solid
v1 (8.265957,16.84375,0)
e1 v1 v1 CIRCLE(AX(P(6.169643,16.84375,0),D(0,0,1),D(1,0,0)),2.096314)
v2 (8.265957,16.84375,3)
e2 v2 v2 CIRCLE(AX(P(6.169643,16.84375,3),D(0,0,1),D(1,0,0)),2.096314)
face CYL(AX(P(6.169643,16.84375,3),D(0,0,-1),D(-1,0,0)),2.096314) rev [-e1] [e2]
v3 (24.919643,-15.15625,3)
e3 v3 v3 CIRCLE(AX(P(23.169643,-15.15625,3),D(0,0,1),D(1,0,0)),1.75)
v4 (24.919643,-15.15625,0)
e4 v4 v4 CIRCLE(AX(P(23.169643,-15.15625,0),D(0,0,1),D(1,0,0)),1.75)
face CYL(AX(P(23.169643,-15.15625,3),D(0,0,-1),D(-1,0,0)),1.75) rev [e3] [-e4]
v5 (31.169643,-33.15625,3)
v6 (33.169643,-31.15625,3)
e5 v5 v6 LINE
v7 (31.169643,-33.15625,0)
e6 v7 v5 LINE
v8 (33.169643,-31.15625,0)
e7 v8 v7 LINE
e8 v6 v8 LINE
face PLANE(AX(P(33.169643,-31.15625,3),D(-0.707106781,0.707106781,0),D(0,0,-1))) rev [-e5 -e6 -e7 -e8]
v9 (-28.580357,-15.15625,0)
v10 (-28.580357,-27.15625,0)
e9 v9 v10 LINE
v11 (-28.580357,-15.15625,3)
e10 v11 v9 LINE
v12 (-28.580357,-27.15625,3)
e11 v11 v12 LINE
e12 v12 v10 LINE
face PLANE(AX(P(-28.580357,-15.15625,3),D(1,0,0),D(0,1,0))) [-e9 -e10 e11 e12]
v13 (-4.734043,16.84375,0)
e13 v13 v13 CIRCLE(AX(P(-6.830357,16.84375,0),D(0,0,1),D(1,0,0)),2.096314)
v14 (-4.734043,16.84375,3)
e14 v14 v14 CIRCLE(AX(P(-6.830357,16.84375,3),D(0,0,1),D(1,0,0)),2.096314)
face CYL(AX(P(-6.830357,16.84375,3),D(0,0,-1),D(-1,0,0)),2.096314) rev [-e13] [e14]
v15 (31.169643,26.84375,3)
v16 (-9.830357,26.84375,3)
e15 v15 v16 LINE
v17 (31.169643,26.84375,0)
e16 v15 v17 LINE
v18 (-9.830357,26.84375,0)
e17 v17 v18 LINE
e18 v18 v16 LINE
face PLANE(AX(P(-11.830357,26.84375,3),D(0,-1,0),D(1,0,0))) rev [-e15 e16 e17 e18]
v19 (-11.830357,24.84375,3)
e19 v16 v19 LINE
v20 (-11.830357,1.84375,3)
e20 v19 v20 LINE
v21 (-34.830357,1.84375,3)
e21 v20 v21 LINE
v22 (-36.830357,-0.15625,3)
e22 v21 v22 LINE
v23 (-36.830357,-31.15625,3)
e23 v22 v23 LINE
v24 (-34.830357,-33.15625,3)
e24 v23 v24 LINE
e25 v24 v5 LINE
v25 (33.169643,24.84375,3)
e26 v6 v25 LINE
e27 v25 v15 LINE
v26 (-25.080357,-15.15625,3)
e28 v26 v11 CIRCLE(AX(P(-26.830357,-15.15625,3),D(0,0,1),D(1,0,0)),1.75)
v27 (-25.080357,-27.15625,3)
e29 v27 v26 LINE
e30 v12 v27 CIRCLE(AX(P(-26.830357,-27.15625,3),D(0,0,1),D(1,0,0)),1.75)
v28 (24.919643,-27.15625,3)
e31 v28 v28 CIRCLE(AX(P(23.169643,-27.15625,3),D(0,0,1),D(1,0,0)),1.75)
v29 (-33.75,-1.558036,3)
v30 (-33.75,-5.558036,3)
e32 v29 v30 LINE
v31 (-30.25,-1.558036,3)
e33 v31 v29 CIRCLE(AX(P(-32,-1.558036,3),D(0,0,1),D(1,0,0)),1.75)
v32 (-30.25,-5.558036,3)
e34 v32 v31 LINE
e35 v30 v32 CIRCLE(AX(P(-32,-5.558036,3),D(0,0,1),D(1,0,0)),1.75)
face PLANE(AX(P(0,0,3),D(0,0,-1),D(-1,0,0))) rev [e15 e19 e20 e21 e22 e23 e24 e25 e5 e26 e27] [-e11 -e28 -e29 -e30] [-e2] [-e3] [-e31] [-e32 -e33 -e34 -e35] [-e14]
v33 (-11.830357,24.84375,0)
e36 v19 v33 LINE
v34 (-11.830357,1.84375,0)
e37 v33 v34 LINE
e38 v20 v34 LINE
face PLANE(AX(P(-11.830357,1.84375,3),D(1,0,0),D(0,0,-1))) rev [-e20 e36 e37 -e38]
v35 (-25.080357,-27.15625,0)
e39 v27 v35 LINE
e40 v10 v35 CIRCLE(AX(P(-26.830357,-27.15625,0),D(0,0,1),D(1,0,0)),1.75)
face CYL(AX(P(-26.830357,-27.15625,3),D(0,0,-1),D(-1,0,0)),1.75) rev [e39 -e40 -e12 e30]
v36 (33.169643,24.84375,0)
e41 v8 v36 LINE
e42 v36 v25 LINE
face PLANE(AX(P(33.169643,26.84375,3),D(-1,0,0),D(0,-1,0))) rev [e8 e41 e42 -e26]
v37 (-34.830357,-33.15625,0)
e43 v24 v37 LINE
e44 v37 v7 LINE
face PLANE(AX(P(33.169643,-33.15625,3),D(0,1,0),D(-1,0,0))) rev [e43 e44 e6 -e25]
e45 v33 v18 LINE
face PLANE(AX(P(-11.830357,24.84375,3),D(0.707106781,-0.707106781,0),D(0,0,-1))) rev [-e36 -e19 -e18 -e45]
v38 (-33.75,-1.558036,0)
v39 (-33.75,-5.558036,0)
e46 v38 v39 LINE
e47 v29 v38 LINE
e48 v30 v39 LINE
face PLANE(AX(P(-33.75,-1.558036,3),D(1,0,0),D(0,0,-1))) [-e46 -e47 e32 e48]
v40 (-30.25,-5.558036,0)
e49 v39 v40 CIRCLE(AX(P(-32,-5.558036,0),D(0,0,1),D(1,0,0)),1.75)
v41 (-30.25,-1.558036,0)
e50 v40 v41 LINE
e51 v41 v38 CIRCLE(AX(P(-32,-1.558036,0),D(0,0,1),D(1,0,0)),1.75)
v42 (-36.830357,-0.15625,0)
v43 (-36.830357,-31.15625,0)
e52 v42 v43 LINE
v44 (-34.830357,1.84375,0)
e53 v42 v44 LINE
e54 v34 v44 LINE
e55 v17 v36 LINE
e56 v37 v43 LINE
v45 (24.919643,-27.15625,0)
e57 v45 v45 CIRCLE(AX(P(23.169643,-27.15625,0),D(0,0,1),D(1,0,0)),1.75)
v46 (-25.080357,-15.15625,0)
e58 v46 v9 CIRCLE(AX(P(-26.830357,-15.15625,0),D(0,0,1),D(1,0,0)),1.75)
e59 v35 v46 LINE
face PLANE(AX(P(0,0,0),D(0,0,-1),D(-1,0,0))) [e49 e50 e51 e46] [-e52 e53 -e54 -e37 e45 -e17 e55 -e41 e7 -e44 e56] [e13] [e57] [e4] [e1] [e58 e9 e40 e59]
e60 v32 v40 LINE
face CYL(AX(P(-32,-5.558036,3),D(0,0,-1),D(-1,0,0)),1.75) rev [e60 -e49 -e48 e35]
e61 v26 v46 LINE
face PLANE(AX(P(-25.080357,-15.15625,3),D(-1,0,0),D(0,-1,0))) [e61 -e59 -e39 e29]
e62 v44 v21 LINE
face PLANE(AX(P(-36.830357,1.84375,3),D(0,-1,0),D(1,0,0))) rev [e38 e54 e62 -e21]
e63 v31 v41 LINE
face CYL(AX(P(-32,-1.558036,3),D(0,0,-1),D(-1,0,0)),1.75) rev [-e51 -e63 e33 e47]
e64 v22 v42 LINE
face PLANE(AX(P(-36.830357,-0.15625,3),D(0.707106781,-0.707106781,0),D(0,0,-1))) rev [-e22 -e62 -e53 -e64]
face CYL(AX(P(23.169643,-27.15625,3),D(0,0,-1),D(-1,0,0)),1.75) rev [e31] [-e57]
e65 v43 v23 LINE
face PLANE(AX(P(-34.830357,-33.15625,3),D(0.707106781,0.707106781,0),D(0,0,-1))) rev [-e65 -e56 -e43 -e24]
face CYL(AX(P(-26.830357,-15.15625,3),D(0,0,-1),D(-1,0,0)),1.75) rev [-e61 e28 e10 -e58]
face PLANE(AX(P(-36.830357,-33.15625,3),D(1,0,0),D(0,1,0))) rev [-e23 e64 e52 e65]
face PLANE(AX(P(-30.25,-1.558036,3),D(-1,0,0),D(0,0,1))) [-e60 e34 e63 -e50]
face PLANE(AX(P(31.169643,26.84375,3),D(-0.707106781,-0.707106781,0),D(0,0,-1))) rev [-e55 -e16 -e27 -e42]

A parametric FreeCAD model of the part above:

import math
import FreeCAD as App
import Part
import Sketcher

V = App.Vector


def edges_at(feature, points):
    """Names of the edges that pass closest to the given points."""
    edges = feature.Shape.Edges
    near = lambda p: min(range(len(edges)), key=lambda i: edges[i].distToShape(Part.Vertex(*p))[0])
    return sorted({f"Edge{near(p) + 1}" for p in points})


def add_polygon(sketch, points):
    """Adds a closed chain of lines whose ends are joined by coincident constraints."""
    first, n = sketch.GeometryCount, len(points)
    for a, b in zip(points, points[1:] + points[:1]):
        sketch.addGeometry(Part.LineSegment(App.Vector(*a, 0), App.Vector(*b, 0)), False)
    for i in range(n):
        sketch.addConstraint(Sketcher.Constraint("Coincident", first + i, 2, first + (i + 1) % n, 1))

doc = App.newDocument("Part")
body = doc.addObject("PartDesign::Body", "Body")

# Sketch on XY plane
sketch1 = body.newObject("Sketcher::SketchObject", "Sketch")
sketch1.AttachmentSupport = (doc.getObject("XY_Plane"), [""])
sketch1.MapMode = "FlatFace"
add_polygon(sketch1, [(33.2, 26.8), (-11.8, 26.8), (-11.8, 1.8), (-36.8, 1.8), (-36.8, -33.2), (33.2, -33.2)])  # lines 0-5
sketch1.addGeometry(Part.Circle(V(23.2, -27.2, 0), V(0, 0, 1), 1.8), False)  # 6
sketch1.addGeometry(Part.Circle(V(23.2, -15.2, 0), V(0, 0, 1), 1.8), False)  # 7
sketch1.addGeometry(Part.LineSegment(V(-25.1, -15.2, 0), V(-25.1, -27.2, 0)), False)  # 8
sketch1.addGeometry(Part.ArcOfCircle(Part.Circle(V(-26.8, -27.2, 0), V(0, 0, 1), 1.8), math.radians(180), math.radians(360)), False)  # 9
sketch1.addGeometry(Part.LineSegment(V(-28.6, -27.2, 0), V(-28.6, -15.2, 0)), False)  # 10
sketch1.addGeometry(Part.ArcOfCircle(Part.Circle(V(-26.8, -15.2, 0), V(0, 0, 1), 1.8), math.radians(0), math.radians(180)), False)  # 11
sketch1.addGeometry(Part.Circle(V(6.2, 16.8, 0), V(0, 0, 1), 2.1), False)  # 12
sketch1.addGeometry(Part.ArcOfCircle(Part.Circle(V(-32, -1.6, 0), V(0, 0, 1), 1.8), math.radians(0), math.radians(180)), False)  # 13
sketch1.addGeometry(Part.LineSegment(V(-30.2, -1.6, 0), V(-30.2, -5.6, 0)), False)  # 14
sketch1.addGeometry(Part.ArcOfCircle(Part.Circle(V(-32, -5.6, 0), V(0, 0, 1), 1.8), math.radians(180), math.radians(360)), False)  # 15
sketch1.addGeometry(Part.LineSegment(V(-33.8, -5.6, 0), V(-33.8, -1.6, 0)), False)  # 16
sketch1.addGeometry(Part.Circle(V(-6.8, 16.8, 0), V(0, 0, 1), 2.1), False)  # 17
sketch1.addConstraint([
    Sketcher.Constraint("Tangent", 8, 2, 9, 2),
    Sketcher.Constraint("Tangent", 9, 1, 10, 1),
    Sketcher.Constraint("Tangent", 10, 2, 11, 2),
    Sketcher.Constraint("Tangent", 11, 1, 8, 1),
    Sketcher.Constraint("Tangent", 13, 1, 14, 1),
    Sketcher.Constraint("Tangent", 14, 2, 15, 2),
    Sketcher.Constraint("Tangent", 15, 1, 16, 1),
    Sketcher.Constraint("Tangent", 16, 2, 13, 2),
    Sketcher.Constraint("Horizontal", 0),
    Sketcher.Constraint("Vertical", 1),
    Sketcher.Constraint("Horizontal", 2),
    Sketcher.Constraint("Vertical", 3),
    Sketcher.Constraint("Horizontal", 4),
    Sketcher.Constraint("Vertical", 5),
    Sketcher.Constraint("Vertical", 8),
    Sketcher.Constraint("Vertical", 10),
    Sketcher.Constraint("Vertical", 14),
    Sketcher.Constraint("Vertical", 16),
    Sketcher.Constraint("Equal", 6, 7),
    Sketcher.Constraint("Equal", 7, 9),
    Sketcher.Constraint("Equal", 11, 13),
    Sketcher.Constraint("Equal", 12, 17),
    Sketcher.Constraint("Horizontal", 6, 3, 9, 3),
    Sketcher.Constraint("Horizontal", 7, 3, 11, 3),
    Sketcher.Constraint("Horizontal", 12, 3, 17, 3),
    Sketcher.Constraint("Vertical", 6, 3, 7, 3),
    Sketcher.Constraint("Equal", 2, 1),
    Sketcher.Constraint("Diameter", 6, 3.5),
    Sketcher.Constraint("DistanceX", 0, 2, 0, 1, 45.0),
    Sketcher.Constraint("DistanceX", 2, 2, 2, 1, 25.0),
    Sketcher.Constraint("DistanceY", 3, 2, 3, 1, 35.0),
    Sketcher.Constraint("DistanceY", 8, 2, 8, 1, 12.0),
    Sketcher.Constraint("DistanceY", 14, 2, 14, 1, 4.0),
    Sketcher.Constraint("DistanceX", 13, 3, -1, 1, 32.0),
    Sketcher.Constraint("DistanceX", 9, 3, 6, 3, 50.0),
    Sketcher.Constraint("DistanceX", 12, 3, 7, 3, 17.0),
    Sketcher.Constraint("DistanceY", 7, 3, 12, 3, 32.0),
    Sketcher.Constraint("DistanceX", 17, 3, 12, 3, 13.0),
    Sketcher.Constraint("DistanceX", 0, 2, 17, 3, 5.0),
    Sketcher.Constraint("DistanceY", 17, 3, 0, 2, 10.0),
    Sketcher.Constraint("Diameter", 12, 4.192627),
    Sketcher.Constraint("DistanceY", 6, 3, -1, 1, 27.15625),
    Sketcher.Constraint("DistanceX", -1, 1, 6, 3, 23.169643),
    Sketcher.Constraint("DistanceY", 13, 3, -1, 1, 1.558036),
])
pad1 = body.newObject("PartDesign::Pad", "Pad")
pad1.Profile = sketch1
pad1.Length = 3
doc.recompute()

chamfer = body.newObject("PartDesign::Chamfer", "Chamfer")
chamfer.Base = (pad1, edges_at(pad1, [
    (-11.83, 26.844, 1.5),
    (33.17, 26.844, 1.5),
    (33.17, -33.156, 1.5),
    (-36.83, -33.156, 1.5),
    (-36.83, 1.844, 1.5),
]))
chamfer.Size = 2

doc.recompute()
